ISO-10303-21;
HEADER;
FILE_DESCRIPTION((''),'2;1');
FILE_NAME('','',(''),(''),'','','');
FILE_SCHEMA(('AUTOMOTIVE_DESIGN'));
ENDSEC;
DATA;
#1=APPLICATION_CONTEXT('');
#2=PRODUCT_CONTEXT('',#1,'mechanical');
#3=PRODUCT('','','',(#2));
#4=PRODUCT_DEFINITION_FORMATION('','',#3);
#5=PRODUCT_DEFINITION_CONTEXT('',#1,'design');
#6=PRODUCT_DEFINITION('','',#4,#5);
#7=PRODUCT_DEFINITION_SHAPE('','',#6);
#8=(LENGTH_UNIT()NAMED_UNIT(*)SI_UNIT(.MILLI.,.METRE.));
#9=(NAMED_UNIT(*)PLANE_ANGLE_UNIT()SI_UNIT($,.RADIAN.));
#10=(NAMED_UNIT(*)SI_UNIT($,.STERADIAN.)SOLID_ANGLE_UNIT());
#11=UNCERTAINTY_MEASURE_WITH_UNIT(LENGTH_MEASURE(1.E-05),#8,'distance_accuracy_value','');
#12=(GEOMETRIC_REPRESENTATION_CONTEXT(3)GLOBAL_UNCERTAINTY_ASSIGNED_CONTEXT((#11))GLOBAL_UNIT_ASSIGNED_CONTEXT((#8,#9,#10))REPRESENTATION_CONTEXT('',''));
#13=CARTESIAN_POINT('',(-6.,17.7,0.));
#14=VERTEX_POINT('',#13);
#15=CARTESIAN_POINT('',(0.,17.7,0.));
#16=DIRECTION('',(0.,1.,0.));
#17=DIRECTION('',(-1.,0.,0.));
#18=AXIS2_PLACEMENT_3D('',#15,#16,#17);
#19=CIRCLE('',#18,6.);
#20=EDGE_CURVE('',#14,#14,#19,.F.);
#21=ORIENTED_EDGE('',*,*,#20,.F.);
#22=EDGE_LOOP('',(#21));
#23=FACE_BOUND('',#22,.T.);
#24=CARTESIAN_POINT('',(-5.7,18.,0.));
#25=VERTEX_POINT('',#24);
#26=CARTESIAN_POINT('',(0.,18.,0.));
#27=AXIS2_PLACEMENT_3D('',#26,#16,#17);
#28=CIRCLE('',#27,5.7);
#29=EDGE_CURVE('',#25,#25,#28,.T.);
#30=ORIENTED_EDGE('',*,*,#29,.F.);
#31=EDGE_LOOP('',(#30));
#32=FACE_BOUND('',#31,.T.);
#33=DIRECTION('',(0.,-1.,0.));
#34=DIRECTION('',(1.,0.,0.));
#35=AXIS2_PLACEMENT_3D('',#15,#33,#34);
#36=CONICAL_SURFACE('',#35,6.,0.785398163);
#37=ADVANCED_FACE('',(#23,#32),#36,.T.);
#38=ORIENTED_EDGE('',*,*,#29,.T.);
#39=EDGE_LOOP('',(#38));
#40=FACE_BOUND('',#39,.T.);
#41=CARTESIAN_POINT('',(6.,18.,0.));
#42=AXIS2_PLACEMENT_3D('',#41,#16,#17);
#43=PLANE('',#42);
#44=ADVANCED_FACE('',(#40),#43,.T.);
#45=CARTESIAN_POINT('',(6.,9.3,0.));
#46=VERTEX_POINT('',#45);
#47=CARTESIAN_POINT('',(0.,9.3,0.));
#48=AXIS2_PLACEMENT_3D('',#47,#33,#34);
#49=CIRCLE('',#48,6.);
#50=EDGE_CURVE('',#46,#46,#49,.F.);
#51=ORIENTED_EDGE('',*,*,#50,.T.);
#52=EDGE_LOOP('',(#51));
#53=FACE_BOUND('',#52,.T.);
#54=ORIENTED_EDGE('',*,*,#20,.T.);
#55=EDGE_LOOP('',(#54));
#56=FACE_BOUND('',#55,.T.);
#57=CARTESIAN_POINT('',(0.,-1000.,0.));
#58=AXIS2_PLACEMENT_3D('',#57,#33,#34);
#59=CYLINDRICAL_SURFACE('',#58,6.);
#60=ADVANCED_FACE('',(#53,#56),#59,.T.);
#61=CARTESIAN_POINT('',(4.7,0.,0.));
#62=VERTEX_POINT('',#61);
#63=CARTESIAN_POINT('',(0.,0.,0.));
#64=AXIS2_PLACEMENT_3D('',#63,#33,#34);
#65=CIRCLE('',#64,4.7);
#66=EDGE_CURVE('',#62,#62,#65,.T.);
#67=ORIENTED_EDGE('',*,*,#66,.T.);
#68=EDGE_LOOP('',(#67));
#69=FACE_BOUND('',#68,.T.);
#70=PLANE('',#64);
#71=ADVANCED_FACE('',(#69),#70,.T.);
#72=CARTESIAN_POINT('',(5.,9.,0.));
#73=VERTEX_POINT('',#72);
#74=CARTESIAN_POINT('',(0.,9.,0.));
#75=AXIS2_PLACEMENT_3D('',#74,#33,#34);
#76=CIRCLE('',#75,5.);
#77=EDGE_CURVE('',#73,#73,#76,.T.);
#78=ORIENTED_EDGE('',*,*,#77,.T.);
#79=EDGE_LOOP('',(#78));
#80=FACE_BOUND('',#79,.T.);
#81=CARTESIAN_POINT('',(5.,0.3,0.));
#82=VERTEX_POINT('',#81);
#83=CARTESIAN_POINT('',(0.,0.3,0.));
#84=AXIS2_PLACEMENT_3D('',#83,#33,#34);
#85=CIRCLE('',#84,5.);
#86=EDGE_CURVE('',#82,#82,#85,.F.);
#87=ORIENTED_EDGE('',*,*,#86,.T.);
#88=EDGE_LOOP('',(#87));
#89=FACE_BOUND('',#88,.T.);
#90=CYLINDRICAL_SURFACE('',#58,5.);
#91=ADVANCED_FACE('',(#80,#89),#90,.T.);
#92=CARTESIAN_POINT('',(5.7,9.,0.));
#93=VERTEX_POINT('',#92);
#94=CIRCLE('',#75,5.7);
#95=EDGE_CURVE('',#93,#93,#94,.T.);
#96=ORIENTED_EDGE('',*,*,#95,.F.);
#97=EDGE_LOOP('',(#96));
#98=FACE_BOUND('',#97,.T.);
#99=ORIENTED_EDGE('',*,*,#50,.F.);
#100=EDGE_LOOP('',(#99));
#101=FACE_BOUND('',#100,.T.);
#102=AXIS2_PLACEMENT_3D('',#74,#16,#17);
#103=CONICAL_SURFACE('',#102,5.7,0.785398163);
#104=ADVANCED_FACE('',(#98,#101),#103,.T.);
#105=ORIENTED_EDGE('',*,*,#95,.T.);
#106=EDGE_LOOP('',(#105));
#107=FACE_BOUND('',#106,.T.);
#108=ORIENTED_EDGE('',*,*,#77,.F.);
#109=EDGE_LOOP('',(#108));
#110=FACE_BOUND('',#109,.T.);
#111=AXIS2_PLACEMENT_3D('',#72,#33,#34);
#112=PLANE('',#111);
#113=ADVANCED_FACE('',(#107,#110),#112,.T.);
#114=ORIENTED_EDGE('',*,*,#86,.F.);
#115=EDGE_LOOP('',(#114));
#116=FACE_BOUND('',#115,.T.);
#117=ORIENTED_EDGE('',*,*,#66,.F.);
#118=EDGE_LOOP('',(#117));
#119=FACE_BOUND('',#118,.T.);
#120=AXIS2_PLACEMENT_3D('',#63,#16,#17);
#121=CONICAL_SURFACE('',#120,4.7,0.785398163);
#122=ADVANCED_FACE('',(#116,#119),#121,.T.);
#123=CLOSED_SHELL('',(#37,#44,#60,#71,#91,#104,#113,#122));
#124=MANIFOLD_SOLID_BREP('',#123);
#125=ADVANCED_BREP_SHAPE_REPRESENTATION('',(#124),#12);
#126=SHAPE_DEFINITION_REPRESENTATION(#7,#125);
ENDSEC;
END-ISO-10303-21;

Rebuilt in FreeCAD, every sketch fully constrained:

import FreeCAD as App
import Part
import Sketcher


def edges_at(feature, points):
    """Names of the edges that pass closest to the given points."""
    edges = feature.Shape.Edges
    near = lambda p: min(range(len(edges)), key=lambda i: edges[i].distToShape(Part.Vertex(*p))[0])
    return sorted({f"Edge{near(p) + 1}" for p in points})

doc = App.newDocument("Part")
body = doc.addObject("PartDesign::Body", "Body")

sketch1 = body.newObject("Sketcher::SketchObject", "Sketch")
sketch1.AttachmentSupport = (doc.getObject("XY_Plane"), [""])
sketch1.MapMode = "FlatFace"
sketch1.addGeometry(Part.LineSegment(App.Vector(0, 0, 0), App.Vector(5, 0, 0)), False)
sketch1.addGeometry(Part.LineSegment(App.Vector(5, 0, 0), App.Vector(5, 9, 0)), False)
sketch1.addGeometry(Part.LineSegment(App.Vector(5, 9, 0), App.Vector(6, 9, 0)), False)
sketch1.addGeometry(Part.LineSegment(App.Vector(6, 9, 0), App.Vector(6, 18, 0)), False)
sketch1.addGeometry(Part.LineSegment(App.Vector(6, 18, 0), App.Vector(0, 18, 0)), False)
sketch1.addGeometry(Part.LineSegment(App.Vector(0, 18, 0), App.Vector(0, 0, 0)), False)
sketch1.addConstraint(Sketcher.Constraint("Coincident", 0, 2, 1, 1))
sketch1.addConstraint(Sketcher.Constraint("Coincident", 1, 2, 2, 1))
sketch1.addConstraint(Sketcher.Constraint("Coincident", 2, 2, 3, 1))
sketch1.addConstraint(Sketcher.Constraint("Coincident", 3, 2, 4, 1))
sketch1.addConstraint(Sketcher.Constraint("Coincident", 4, 2, 5, 1))
sketch1.addConstraint(Sketcher.Constraint("Coincident", 5, 2, 0, 1))
sketch1.addConstraint(Sketcher.Constraint("Horizontal", 0))
sketch1.addConstraint(Sketcher.Constraint("Vertical", 1))
sketch1.addConstraint(Sketcher.Constraint("Horizontal", 2))
sketch1.addConstraint(Sketcher.Constraint("Vertical", 3))
sketch1.addConstraint(Sketcher.Constraint("Horizontal", 4))
sketch1.addConstraint(Sketcher.Constraint("Vertical", 5))
sketch1.addConstraint(Sketcher.Constraint("Coincident", 5, 2, -1, 1))
sketch1.addConstraint(Sketcher.Constraint("Equal", 1, 3))
sketch1.addConstraint(Sketcher.Constraint("DistanceX", 0, 1, 0, 2, 5.0))
sketch1.addConstraint(Sketcher.Constraint("DistanceX", 2, 1, 2, 2, 1.0))
sketch1.addConstraint(Sketcher.Constraint("DistanceY", 1, 1, 1, 2, 9.0))
revolution = body.newObject("PartDesign::Revolution", "Revolution")
revolution.Profile = sketch1
revolution.ReferenceAxis = (sketch1, ["V_Axis"])
revolution.Angle = 360
doc.recompute()

chamfer = body.newObject("PartDesign::Chamfer", "Chamfer")
chamfer.Base = (revolution, edges_at(revolution, [(-6, 18, 0), (-6, 9, 0), (-5, 0, 0)]))
chamfer.Size = 0.3

doc.recompute()
